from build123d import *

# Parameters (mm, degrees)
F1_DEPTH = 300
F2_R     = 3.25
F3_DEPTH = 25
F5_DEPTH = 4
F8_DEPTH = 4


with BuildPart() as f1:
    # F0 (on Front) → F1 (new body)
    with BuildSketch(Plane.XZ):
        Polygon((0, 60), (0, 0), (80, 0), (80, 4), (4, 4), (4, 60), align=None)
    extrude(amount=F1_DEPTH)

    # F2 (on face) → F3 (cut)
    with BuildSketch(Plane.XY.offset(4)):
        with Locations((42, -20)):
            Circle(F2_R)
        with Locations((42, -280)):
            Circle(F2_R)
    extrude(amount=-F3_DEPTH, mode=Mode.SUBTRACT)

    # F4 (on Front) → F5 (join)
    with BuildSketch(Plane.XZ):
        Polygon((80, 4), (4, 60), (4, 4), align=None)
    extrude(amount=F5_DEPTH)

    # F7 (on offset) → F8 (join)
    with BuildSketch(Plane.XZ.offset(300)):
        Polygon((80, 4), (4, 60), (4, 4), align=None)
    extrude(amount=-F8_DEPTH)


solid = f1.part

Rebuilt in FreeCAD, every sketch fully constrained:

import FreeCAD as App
import Part
import Sketcher
Q = App.Units.Quantity


def add_polygon(sketch, points):
    """Adds a closed chain of lines whose ends are joined by coincident constraints."""
    first, n = sketch.GeometryCount, len(points)
    for a, b in zip(points, points[1:] + points[:1]):
        sketch.addGeometry(Part.LineSegment(App.Vector(*a, 0), App.Vector(*b, 0)), False)
    for i in range(n):
        sketch.addConstraint(Sketcher.Constraint("Coincident", first + i, 2, first + (i + 1) % n, 1))

doc = App.newDocument("Part")
body = doc.addObject("PartDesign::Body", "Body")

# Sketch on XZ plane
sketch1 = doc.addObject("Sketcher::SketchObject", "Sketch")
body.addObject(sketch1)
sketch1.AttachmentSupport = (doc.XZ_Plane, [""])
sketch1.MapMode = "FlatFace"
add_polygon(sketch1, [(0, 60), (0, 0), (80, 0), (80, 4), (4, 4), (4, 60)])  # lines 0-5
sketch1.addConstraint(Sketcher.Constraint("Vertical", 0))
sketch1.addConstraint(Sketcher.Constraint("Horizontal", 1))
sketch1.addConstraint(Sketcher.Constraint("Vertical", 2))
sketch1.addConstraint(Sketcher.Constraint("Horizontal", 3))
sketch1.addConstraint(Sketcher.Constraint("Vertical", 4))
sketch1.addConstraint(Sketcher.Constraint("Horizontal", 5))
sketch1.addConstraint(Sketcher.Constraint("Coincident", 0, 2, -1, 1))
sketch1.addConstraint(Sketcher.Constraint("Equal", 5, 2))
sketch1.addConstraint(Sketcher.Constraint("DistanceX", 1, 1, 1, 2, Q("80 mm")))
sketch1.addConstraint(Sketcher.Constraint("DistanceX", 3, 2, 3, 1, Q("76 mm")))
sketch1.addConstraint(Sketcher.Constraint("DistanceY", 0, 2, 0, 1, Q("60 mm")))
pad1 = doc.addObject("PartDesign::Pad", "Pad")
body.addObject(pad1)
pad1.Profile = sketch1
pad1.Length = 300

# Sketch on XY plane
sketch2 = doc.addObject("Sketcher::SketchObject", "Sketch001")
body.addObject(sketch2)
sketch2.AttachmentSupport = (doc.XY_Plane, [""])
sketch2.MapMode = "FlatFace"
sketch2.AttachmentOffset = App.Placement(App.Vector(0, 0, 4), App.Rotation())
sketch2.addGeometry(Part.Circle(App.Vector(42, -20, 0), App.Vector(0, 0, 1), 3.2), False)
sketch2.addGeometry(Part.Circle(App.Vector(42, -280, 0), App.Vector(0, 0, 1), 3.2), False)
sketch2.addConstraint(Sketcher.Constraint("Equal", 0, 1))
sketch2.addConstraint(Sketcher.Constraint("Vertical", 0, 3, 1, 3))
sketch2.addConstraint(Sketcher.Constraint("Diameter", 0, Q("6.5 mm")))
sketch2.addConstraint(Sketcher.Constraint("DistanceX", -1, 1, 0, 3, Q("42 mm")))
sketch2.addConstraint(Sketcher.Constraint("DistanceY", 0, 3, -1, 1, Q("20 mm")))
sketch2.addConstraint(Sketcher.Constraint("DistanceY", 1, 3, -1, 1, Q("280 mm")))
pocket1 = doc.addObject("PartDesign::Pocket", "Pocket")
body.addObject(pocket1)
pocket1.Profile = sketch2
pocket1.Length = 25

# Sketch on XZ plane
sketch3 = doc.addObject("Sketcher::SketchObject", "Sketch002")
body.addObject(sketch3)
sketch3.AttachmentSupport = (doc.XZ_Plane, [""])
sketch3.MapMode = "FlatFace"
add_polygon(sketch3, [(80, 4), (4, 60), (4, 4)])  # lines 0-2
sketch3.addConstraint(Sketcher.Constraint("Vertical", 1))
sketch3.addConstraint(Sketcher.Constraint("Horizontal", 2))
sketch3.addConstraint(Sketcher.Constraint("DistanceX", 2, 1, 2, 2, Q("76 mm")))
sketch3.addConstraint(Sketcher.Constraint("DistanceY", 1, 2, 1, 1, Q("56 mm")))
sketch3.addConstraint(Sketcher.Constraint("DistanceX", -1, 1, 0, 2, Q("4 mm")))
sketch3.addConstraint(Sketcher.Constraint("DistanceY", -1, 1, 0, 2, Q("60 mm")))
pad2 = doc.addObject("PartDesign::Pad", "Pad001")
body.addObject(pad2)
pad2.Profile = sketch3
pad2.Length = 4

# Sketch on XZ plane
sketch4 = doc.addObject("Sketcher::SketchObject", "Sketch003")
body.addObject(sketch4)
sketch4.AttachmentSupport = (doc.XZ_Plane, [""])
sketch4.MapMode = "FlatFace"
sketch4.AttachmentOffset = App.Placement(App.Vector(0, 0, 300), App.Rotation())
add_polygon(sketch4, [(80, 4), (4, 60), (4, 4)])  # lines 0-2
sketch4.addConstraint(Sketcher.Constraint("Vertical", 1))
sketch4.addConstraint(Sketcher.Constraint("Horizontal", 2))
sketch4.addConstraint(Sketcher.Constraint("DistanceX", 2, 1, 2, 2, Q("76 mm")))
sketch4.addConstraint(Sketcher.Constraint("DistanceY", 1, 2, 1, 1, Q("56 mm")))
sketch4.addConstraint(Sketcher.Constraint("DistanceX", -1, 1, 0, 2, Q("4 mm")))
sketch4.addConstraint(Sketcher.Constraint("DistanceY", -1, 1, 0, 2, Q("60 mm")))
pad3 = doc.addObject("PartDesign::Pad", "Pad002")
body.addObject(pad3)
pad3.Profile = sketch4
pad3.Length = 4
pad3.Reversed = True

doc.recompute()
